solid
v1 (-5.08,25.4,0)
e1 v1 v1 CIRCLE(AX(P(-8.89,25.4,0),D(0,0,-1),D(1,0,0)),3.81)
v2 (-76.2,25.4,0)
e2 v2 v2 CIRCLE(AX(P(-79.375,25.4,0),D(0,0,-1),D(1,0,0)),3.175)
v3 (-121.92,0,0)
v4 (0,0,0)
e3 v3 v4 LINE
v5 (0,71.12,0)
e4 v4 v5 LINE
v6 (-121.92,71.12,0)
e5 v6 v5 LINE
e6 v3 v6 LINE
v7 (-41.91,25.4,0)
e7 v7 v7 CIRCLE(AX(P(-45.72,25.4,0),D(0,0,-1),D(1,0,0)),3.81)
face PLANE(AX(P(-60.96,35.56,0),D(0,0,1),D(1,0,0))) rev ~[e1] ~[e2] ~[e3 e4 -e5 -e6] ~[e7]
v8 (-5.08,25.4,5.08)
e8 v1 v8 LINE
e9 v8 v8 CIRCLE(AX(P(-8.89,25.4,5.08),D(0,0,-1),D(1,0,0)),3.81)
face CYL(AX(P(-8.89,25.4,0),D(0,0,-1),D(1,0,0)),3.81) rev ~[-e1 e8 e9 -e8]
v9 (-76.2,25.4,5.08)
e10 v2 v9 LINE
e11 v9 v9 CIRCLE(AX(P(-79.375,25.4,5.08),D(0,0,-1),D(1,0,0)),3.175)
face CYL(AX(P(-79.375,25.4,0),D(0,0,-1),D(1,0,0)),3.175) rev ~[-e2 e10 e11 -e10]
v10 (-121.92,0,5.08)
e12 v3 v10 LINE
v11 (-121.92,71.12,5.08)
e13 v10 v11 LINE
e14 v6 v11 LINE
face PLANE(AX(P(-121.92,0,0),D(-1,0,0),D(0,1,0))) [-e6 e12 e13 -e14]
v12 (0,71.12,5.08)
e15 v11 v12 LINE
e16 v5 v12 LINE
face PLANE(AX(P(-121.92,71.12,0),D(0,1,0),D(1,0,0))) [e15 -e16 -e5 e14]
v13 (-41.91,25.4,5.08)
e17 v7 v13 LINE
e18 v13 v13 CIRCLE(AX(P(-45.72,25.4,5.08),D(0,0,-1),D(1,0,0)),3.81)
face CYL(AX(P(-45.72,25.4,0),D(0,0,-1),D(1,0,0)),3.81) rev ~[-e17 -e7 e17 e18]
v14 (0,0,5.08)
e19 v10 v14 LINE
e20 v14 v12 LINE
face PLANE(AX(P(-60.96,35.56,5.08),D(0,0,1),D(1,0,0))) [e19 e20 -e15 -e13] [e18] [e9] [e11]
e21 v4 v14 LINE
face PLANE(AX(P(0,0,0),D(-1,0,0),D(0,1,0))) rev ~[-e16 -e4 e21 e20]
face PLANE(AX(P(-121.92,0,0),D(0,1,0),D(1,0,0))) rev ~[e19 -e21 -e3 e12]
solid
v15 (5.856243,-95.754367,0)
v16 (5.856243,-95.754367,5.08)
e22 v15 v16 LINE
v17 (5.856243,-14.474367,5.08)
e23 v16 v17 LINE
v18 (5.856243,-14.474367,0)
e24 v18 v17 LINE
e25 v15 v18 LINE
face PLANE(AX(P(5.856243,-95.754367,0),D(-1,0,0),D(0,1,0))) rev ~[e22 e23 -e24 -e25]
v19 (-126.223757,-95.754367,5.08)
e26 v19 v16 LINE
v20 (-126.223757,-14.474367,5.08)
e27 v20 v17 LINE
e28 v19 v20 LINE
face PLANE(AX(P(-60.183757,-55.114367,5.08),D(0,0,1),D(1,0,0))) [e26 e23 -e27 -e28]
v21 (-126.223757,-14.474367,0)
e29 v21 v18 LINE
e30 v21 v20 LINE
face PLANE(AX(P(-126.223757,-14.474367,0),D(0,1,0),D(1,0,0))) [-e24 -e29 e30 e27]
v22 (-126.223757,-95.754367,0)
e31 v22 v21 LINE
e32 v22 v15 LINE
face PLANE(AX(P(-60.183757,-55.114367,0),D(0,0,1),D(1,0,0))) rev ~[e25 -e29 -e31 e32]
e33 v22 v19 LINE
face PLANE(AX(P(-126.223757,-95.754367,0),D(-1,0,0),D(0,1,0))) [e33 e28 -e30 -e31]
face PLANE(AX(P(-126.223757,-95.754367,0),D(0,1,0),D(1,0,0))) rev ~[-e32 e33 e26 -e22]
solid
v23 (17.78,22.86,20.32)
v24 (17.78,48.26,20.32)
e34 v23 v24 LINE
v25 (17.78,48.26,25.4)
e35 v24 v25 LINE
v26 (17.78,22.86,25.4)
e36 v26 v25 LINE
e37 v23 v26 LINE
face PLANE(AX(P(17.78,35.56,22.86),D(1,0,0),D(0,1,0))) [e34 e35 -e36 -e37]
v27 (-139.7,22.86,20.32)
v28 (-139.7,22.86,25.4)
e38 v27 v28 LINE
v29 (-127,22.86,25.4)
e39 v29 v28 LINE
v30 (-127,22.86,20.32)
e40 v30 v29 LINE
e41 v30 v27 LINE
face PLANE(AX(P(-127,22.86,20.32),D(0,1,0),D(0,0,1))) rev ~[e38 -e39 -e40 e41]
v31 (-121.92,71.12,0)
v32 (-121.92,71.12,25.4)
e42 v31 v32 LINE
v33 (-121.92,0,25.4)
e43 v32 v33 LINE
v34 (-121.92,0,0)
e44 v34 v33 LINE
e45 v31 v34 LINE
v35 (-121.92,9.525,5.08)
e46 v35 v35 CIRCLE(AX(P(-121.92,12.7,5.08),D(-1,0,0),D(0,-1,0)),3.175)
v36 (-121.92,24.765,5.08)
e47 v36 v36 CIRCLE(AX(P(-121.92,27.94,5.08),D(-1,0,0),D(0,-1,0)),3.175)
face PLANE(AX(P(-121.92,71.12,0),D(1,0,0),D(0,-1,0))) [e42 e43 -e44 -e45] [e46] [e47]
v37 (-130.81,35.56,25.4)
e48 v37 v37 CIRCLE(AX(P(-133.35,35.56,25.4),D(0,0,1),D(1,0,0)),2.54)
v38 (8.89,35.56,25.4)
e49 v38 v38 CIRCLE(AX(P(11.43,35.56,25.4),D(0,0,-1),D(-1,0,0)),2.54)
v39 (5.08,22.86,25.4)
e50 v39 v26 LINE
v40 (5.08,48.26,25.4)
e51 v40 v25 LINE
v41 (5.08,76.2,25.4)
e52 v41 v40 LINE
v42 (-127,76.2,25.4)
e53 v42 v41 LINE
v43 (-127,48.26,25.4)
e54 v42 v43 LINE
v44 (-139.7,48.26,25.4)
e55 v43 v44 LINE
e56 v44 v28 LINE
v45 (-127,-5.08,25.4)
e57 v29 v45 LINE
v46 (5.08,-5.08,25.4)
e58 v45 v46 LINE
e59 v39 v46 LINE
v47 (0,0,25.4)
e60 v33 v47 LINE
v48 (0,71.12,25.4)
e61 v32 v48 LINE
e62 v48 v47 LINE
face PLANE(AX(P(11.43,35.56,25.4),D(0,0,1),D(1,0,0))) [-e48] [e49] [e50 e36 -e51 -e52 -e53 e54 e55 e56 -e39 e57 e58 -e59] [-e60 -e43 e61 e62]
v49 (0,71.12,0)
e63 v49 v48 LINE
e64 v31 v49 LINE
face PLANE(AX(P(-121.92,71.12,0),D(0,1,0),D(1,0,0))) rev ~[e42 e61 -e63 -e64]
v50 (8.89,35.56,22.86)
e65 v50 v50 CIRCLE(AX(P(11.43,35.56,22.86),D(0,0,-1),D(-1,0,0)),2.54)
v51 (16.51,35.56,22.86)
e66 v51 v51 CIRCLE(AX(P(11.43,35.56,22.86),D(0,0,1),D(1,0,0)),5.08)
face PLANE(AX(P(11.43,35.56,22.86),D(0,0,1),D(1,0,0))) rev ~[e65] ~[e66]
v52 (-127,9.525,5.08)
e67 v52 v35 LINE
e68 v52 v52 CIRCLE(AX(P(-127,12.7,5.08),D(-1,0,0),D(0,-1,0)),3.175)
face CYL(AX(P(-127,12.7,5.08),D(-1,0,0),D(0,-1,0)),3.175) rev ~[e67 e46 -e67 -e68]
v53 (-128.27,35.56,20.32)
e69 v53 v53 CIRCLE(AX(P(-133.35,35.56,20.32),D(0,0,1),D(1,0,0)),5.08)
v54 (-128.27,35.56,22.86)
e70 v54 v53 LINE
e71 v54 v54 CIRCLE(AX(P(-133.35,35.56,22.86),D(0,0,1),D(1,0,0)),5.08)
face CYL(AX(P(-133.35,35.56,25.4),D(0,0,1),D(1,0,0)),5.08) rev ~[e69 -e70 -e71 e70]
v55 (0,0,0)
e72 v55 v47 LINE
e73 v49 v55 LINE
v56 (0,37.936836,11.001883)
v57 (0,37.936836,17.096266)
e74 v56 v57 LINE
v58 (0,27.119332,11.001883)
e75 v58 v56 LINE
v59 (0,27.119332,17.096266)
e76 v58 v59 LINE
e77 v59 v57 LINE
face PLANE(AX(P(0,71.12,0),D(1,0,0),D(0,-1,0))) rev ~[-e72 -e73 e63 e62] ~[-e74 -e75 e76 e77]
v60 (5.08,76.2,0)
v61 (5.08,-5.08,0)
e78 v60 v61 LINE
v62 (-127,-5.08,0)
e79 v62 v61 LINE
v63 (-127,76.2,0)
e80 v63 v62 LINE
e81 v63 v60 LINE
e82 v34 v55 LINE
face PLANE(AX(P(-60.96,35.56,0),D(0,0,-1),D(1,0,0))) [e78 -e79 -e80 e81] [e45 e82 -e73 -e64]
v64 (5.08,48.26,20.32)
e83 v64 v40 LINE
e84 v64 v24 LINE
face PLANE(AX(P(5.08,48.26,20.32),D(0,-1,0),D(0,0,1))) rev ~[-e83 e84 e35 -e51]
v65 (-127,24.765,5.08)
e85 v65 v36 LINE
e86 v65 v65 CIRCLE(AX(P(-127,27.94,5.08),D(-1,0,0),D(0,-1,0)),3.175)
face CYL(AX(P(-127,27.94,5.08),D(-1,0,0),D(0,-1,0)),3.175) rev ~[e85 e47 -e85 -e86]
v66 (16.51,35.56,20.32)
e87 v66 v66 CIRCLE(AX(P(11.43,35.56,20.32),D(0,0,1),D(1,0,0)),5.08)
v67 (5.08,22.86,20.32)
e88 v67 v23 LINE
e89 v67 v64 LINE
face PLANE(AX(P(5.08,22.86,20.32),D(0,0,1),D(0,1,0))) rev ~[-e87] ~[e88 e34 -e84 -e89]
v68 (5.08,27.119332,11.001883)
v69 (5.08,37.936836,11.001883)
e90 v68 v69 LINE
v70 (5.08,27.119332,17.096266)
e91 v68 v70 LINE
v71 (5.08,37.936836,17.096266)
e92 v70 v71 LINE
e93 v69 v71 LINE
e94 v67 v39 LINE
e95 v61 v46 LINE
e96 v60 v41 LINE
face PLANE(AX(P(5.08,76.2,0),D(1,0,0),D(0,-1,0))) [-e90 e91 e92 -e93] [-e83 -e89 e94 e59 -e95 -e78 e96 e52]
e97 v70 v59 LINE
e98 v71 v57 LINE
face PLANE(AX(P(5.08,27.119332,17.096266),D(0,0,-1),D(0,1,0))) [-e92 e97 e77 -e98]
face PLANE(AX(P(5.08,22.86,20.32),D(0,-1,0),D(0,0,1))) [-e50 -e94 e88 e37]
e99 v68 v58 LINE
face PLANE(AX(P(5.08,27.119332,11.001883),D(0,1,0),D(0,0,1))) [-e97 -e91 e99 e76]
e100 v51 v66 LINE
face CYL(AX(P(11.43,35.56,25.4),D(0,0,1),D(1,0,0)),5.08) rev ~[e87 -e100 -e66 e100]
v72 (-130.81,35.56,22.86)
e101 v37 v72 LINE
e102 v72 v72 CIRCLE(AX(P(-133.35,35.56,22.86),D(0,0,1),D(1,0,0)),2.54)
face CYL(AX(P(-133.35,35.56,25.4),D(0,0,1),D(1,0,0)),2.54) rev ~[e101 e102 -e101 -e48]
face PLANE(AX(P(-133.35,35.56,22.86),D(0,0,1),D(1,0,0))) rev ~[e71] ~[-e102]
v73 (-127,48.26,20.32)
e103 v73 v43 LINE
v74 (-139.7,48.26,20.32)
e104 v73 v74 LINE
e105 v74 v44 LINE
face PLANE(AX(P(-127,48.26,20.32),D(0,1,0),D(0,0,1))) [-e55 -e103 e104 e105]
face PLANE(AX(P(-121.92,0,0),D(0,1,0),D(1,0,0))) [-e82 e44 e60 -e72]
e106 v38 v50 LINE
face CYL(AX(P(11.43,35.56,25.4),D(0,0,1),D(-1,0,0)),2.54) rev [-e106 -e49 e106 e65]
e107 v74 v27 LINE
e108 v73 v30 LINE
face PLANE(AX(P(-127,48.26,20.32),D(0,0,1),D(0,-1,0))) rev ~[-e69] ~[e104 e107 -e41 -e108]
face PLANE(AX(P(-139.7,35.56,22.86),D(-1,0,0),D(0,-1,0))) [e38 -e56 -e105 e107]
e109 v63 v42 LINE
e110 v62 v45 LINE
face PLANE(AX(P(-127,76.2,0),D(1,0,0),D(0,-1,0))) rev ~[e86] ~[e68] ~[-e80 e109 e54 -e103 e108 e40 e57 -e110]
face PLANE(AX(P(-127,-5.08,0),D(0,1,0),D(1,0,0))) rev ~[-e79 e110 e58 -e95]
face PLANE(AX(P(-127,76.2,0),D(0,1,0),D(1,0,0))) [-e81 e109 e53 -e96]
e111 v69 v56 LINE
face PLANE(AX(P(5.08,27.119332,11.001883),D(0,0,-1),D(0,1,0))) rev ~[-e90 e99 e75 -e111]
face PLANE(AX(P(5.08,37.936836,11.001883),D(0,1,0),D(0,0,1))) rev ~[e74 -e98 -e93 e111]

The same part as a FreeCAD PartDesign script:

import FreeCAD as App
import Part
import Sketcher
Q = App.Units.Quantity


def add_polygon(sketch, points):
    """Adds a closed chain of lines whose ends are joined by coincident constraints."""
    first, n = sketch.GeometryCount, len(points)
    for a, b in zip(points, points[1:] + points[:1]):
        sketch.addGeometry(Part.LineSegment(App.Vector(*a, 0), App.Vector(*b, 0)), False)
    for i in range(n):
        sketch.addConstraint(Sketcher.Constraint("Coincident", first + i, 2, first + (i + 1) % n, 1))

doc = App.newDocument("Part")
body = doc.addObject("PartDesign::Body", "Body")

sketch1 = doc.addObject("Sketcher::SketchObject", "Sketch")
body.addObject(sketch1)
sketch1.AttachmentSupport = (doc.XY_Plane, [""])
sketch1.MapMode = "FlatFace"
add_polygon(sketch1, [(-122, 71), (-122, 0), (0, 0), (0, 71)])
sketch1.addConstraint([
    Sketcher.Constraint("Vertical", 0),
    Sketcher.Constraint("Horizontal", 1),
    Sketcher.Constraint("Vertical", 2),
    Sketcher.Constraint("Horizontal", 3),
    Sketcher.Constraint("Coincident", 1, 2, -1, 1),
    Sketcher.Constraint("DistanceX", 1, 1, 1, 2, Q("4.8 in")),
    Sketcher.Constraint("DistanceY", 0, 2, 0, 1, Q("2.8 in")),
])
pad1 = doc.addObject("PartDesign::Pad", "Pad")
body.addObject(pad1)
pad1.Profile = sketch1
pad1.Length = Q("0.2 in")

sketch2 = doc.addObject("Sketcher::SketchObject", "Sketch001")
body.addObject(sketch2)
sketch2.AttachmentSupport = (doc.XY_Plane, [""])
sketch2.MapMode = "FlatFace"
sketch2.addGeometry(Part.Circle(App.Vector(-45.7, 25.4, 0), App.Vector(0, 0, 1), 3.8), False)
sketch2.addConstraint([
    Sketcher.Constraint("Diameter", 0, Q("0.3 in")),
    Sketcher.Constraint("DistanceY", -1, 1, 0, 3, Q("1 in")),
    Sketcher.Constraint("DistanceX", 0, 3, -1, 1, Q("1.8 in")),
])
pocket1 = doc.addObject("PartDesign::Pocket", "Pocket")
body.addObject(pocket1)
pocket1.Profile = sketch2
pocket1.Length = Q("0.2 in")
pocket1.Reversed = True

sketch3 = doc.addObject("Sketcher::SketchObject", "Sketch002")
body.addObject(sketch3)
sketch3.AttachmentSupport = (doc.XY_Plane, [""])
sketch3.MapMode = "FlatFace"
sketch3.addGeometry(Part.Circle(App.Vector(-8.9, 25.4, 0), App.Vector(0, 0, 1), 3.8), False)
sketch3.addConstraint([
    Sketcher.Constraint("Diameter", 0, Q("0.3 in")),
    Sketcher.Constraint("DistanceY", -1, 1, 0, 3, Q("1 in")),
    Sketcher.Constraint("DistanceX", 0, 3, -1, 1, Q("0.35 in")),
])
pocket2 = doc.addObject("PartDesign::Pocket", "Pocket001")
body.addObject(pocket2)
pocket2.Profile = sketch3
pocket2.Length = Q("0.2 in")
pocket2.Reversed = True

sketch4 = doc.addObject("Sketcher::SketchObject", "Sketch003")
body.addObject(sketch4)
sketch4.AttachmentSupport = (doc.XY_Plane, [""])
sketch4.MapMode = "FlatFace"
sketch4.addGeometry(Part.Circle(App.Vector(-79.4, 25.4, 0), App.Vector(0, 0, 1), 3.2), False)
sketch4.addConstraint([
    Sketcher.Constraint("Diameter", 0, Q("0.25 in")),
    Sketcher.Constraint("DistanceY", -1, 1, 0, 3, Q("1 in")),
    Sketcher.Constraint("DistanceX", 0, 3, -1, 1, Q("3.125 in")),
])
pocket3 = doc.addObject("PartDesign::Pocket", "Pocket002")
body.addObject(pocket3)
pocket3.Profile = sketch4
pocket3.Length = Q("0.2 in")
pocket3.Reversed = True
body2 = doc.addObject("PartDesign::Body", "Body001")

sketch5 = doc.addObject("Sketcher::SketchObject", "Sketch004")
body2.addObject(sketch5)
sketch5.AttachmentSupport = (doc.getObject("XY_Plane001"), [""])
sketch5.MapMode = "FlatFace"
add_polygon(sketch5, [(-127, -5), (-127, 76), (5, 76), (5, -5)])
add_polygon(sketch5, [(0, 71), (-122, 71), (-122, 0), (0, 0)])
sketch5.addConstraint([
    Sketcher.Constraint("Vertical", 0),
    Sketcher.Constraint("Horizontal", 1),
    Sketcher.Constraint("Vertical", 2),
    Sketcher.Constraint("Horizontal", 3),
    Sketcher.Constraint("Horizontal", 4),
    Sketcher.Constraint("Vertical", 5),
    Sketcher.Constraint("Horizontal", 6),
    Sketcher.Constraint("Vertical", 7),
    Sketcher.Constraint("Coincident", 6, 2, -1, 1),
    Sketcher.Constraint("DistanceX", 1, 1, 1, 2, Q("5.2 in")),
    Sketcher.Constraint("DistanceX", 4, 2, 4, 1, Q("4.8 in")),
    Sketcher.Constraint("DistanceY", 0, 1, 0, 2, Q("3.2 in")),
    Sketcher.Constraint("DistanceY", 5, 2, 5, 1, Q("2.8 in")),
    Sketcher.Constraint("DistanceX", 0, 2, -1, 1, Q("5 in")),
    Sketcher.Constraint("DistanceY", -1, 1, 0, 2, Q("3 in")),
])
pad2 = doc.addObject("PartDesign::Pad", "Pad001")
body2.addObject(pad2)
pad2.Profile = sketch5
pad2.Length = Q("1 in")

sketch6 = doc.addObject("Sketcher::SketchObject", "Sketch005")
body2.addObject(sketch6)
sketch6.AttachmentSupport = (doc.getObject("YZ_Plane001"), [""])
sketch6.MapMode = "FlatFace"
sketch6.AttachmentOffset = App.Placement(App.Vector(0, 0, -5 * 25.4), App.Rotation())
sketch6.addGeometry(Part.Circle(App.Vector(27.9, 5.1, 0), App.Vector(0, 0, 1), 3.2), False)
sketch6.addConstraint([
    Sketcher.Constraint("Diameter", 0, Q("0.25 in")),
    Sketcher.Constraint("DistanceX", -1, 1, 0, 3, Q("1.1 in")),
    Sketcher.Constraint("DistanceY", -1, 1, 0, 3, Q("0.2 in")),
])
pocket4 = doc.addObject("PartDesign::Pocket", "Pocket003")
body2.addObject(pocket4)
pocket4.Profile = sketch6
pocket4.Length = Q("0.2 in")
pocket4.Reversed = True

sketch7 = doc.addObject("Sketcher::SketchObject", "Sketch006")
body2.addObject(sketch7)
sketch7.AttachmentSupport = (doc.getObject("YZ_Plane001"), [""])
sketch7.MapMode = "FlatFace"
sketch7.AttachmentOffset = App.Placement(App.Vector(0, 0, -5 * 25.4), App.Rotation())
sketch7.addGeometry(Part.Circle(App.Vector(12.7, 5.1, 0), App.Vector(0, 0, 1), 3.2), False)
sketch7.addConstraint([
    Sketcher.Constraint("Diameter", 0, Q("0.25 in")),
    Sketcher.Constraint("DistanceX", -1, 1, 0, 3, Q("0.5 in")),
    Sketcher.Constraint("DistanceY", -1, 1, 0, 3, Q("0.2 in")),
])
pocket5 = doc.addObject("PartDesign::Pocket", "Pocket004")
body2.addObject(pocket5)
pocket5.Profile = sketch7
pocket5.Length = Q("0.2 in")
pocket5.Reversed = True

sketch8 = doc.addObject("Sketcher::SketchObject", "Sketch007")
body2.addObject(sketch8)
sketch8.AttachmentSupport = (doc.getObject("YZ_Plane001"), [""])
sketch8.MapMode = "FlatFace"
sketch8.AttachmentOffset = App.Placement(App.Vector(0, 0, 0.2 * 25.4), App.Rotation())
add_polygon(sketch8, [(27, 17), (27, 11), (38, 11), (38, 17)])
sketch8.addConstraint([
    Sketcher.Constraint("Vertical", 0),
    Sketcher.Constraint("Horizontal", 1),
    Sketcher.Constraint("Vertical", 2),
    Sketcher.Constraint("Horizontal", 3),
    Sketcher.Constraint("DistanceX", 1, 1, 1, 2, Q("10.817503 mm")),
    Sketcher.Constraint("DistanceY", 0, 2, 0, 1, Q("6.094383 mm")),
    Sketcher.Constraint("DistanceX", -1, 1, 0, 2, Q("27.119332 mm")),
    Sketcher.Constraint("DistanceY", -1, 1, 0, 2, Q("11.001883 mm")),
])
pocket6 = doc.addObject("PartDesign::Pocket", "Pocket005")
body2.addObject(pocket6)
pocket6.Profile = sketch8
pocket6.Length = Q("0.2 in")

sketch9 = doc.addObject("Sketcher::SketchObject", "Sketch008")
body2.addObject(sketch9)
sketch9.AttachmentSupport = (doc.getObject("YZ_Plane001"), [""])
sketch9.MapMode = "FlatFace"
sketch9.AttachmentOffset = App.Placement(App.Vector(0, 0, 0.2 * 25.4), App.Rotation())
add_polygon(sketch9, [(23, 25), (23, 20), (48, 20), (48, 25)])
sketch9.addConstraint([
    Sketcher.Constraint("Vertical", 0),
    Sketcher.Constraint("Horizontal", 1),
    Sketcher.Constraint("Vertical", 2),
    Sketcher.Constraint("Horizontal", 3),
    Sketcher.Constraint("DistanceX", 1, 1, 1, 2, Q("1 in")),
    Sketcher.Constraint("DistanceY", 0, 2, 0, 1, Q("0.2 in")),
    Sketcher.Constraint("DistanceY", -1, 1, 2, 2, Q("1 in")),
    Sketcher.Constraint("DistanceX", -1, 1, 0, 2, Q("0.9 in")),
])
pad3 = doc.addObject("PartDesign::Pad", "Pad002")
body2.addObject(pad3)
pad3.Profile = sketch9
pad3.Length = Q("0.5 in")

sketch10 = doc.addObject("Sketcher::SketchObject", "Sketch009")
body2.addObject(sketch10)
sketch10.AttachmentSupport = (doc.getObject("YZ_Plane001"), [""])
sketch10.MapMode = "FlatFace"
sketch10.AttachmentOffset = App.Placement(App.Vector(0, 0, -5 * 25.4), App.Rotation())
add_polygon(sketch10, [(48, 25), (48, 20), (23, 20), (23, 25)])
sketch10.addConstraint([
    Sketcher.Constraint("Vertical", 0),
    Sketcher.Constraint("Horizontal", 1),
    Sketcher.Constraint("Vertical", 2),
    Sketcher.Constraint("Horizontal", 3),
    Sketcher.Constraint("DistanceX", 1, 2, 1, 1, Q("1 in")),
    Sketcher.Constraint("DistanceY", 0, 2, 0, 1, Q("0.2 in")),
    Sketcher.Constraint("DistanceY", -1, 1, 2, 2, Q("1 in")),
    Sketcher.Constraint("DistanceX", -1, 1, 0, 2, Q("1.9 in")),
])
pad4 = doc.addObject("PartDesign::Pad", "Pad003")
body2.addObject(pad4)
pad4.Profile = sketch10
pad4.Length = Q("0.5 in")
pad4.Reversed = True

sketch11 = doc.addObject("Sketcher::SketchObject", "Sketch010")
body2.addObject(sketch11)
sketch11.AttachmentSupport = (doc.getObject("XY_Plane001"), [""])
sketch11.MapMode = "FlatFace"
sketch11.AttachmentOffset = App.Placement(App.Vector(0, 0, 1 * 25.4), App.Rotation())
sketch11.addGeometry(Part.Circle(App.Vector(11, 36, 0), App.Vector(0, 0, 1), 5), False)
sketch11.addConstraint([
    Sketcher.Constraint("Diameter", 0, Q("0.4 in")),
    Sketcher.Constraint("DistanceY", -1, 1, 0, 3, Q("1.4 in")),
    Sketcher.Constraint("DistanceX", -1, 1, 0, 3, Q("0.45 in")),
])
pocket7 = doc.addObject("PartDesign::Pocket", "Pocket006")
body2.addObject(pocket7)
pocket7.Profile = sketch11
pocket7.Length = Q("0.2 in")

sketch12 = doc.addObject("Sketcher::SketchObject", "Sketch011")
body2.addObject(sketch12)
sketch12.AttachmentSupport = (doc.getObject("XY_Plane001"), [""])
sketch12.MapMode = "FlatFace"
sketch12.AttachmentOffset = App.Placement(App.Vector(0, 0, 1 * 25.4), App.Rotation())
sketch12.addGeometry(Part.Circle(App.Vector(-133, 36, 0), App.Vector(0, 0, 1), 5), False)
sketch12.addConstraint([
    Sketcher.Constraint("Diameter", 0, Q("0.4 in")),
    Sketcher.Constraint("DistanceY", -1, 1, 0, 3, Q("1.4 in")),
    Sketcher.Constraint("DistanceX", 0, 3, -1, 1, Q("5.25 in")),
])
pocket8 = doc.addObject("PartDesign::Pocket", "Pocket007")
body2.addObject(pocket8)
pocket8.Profile = sketch12
pocket8.Length = Q("0.2 in")

sketch13 = doc.addObject("Sketcher::SketchObject", "Sketch012")
body2.addObject(sketch13)
sketch13.AttachmentSupport = (doc.getObject("XY_Plane001"), [""])
sketch13.MapMode = "FlatFace"
sketch13.AttachmentOffset = App.Placement(App.Vector(0, 0, 1 * 25.4), App.Rotation())
sketch13.addGeometry([
    Part.Circle(App.Vector(11.4, 35.6, 0), App.Vector(0, 0, 1), 5.1),
    Part.Circle(App.Vector(11.4, 35.6, 0), App.Vector(0, 0, 1), 2.5),
    Part.Circle(App.Vector(-133.3, 35.6, 0), App.Vector(0, 0, 1), 5.1),
    Part.Circle(App.Vector(-133.3, 35.6, 0), App.Vector(0, 0, 1), 2.5),
], False)
sketch13.addConstraint([
    Sketcher.Constraint("Coincident", 1, 3, 0, 3),
    Sketcher.Constraint("Coincident", 3, 3, 2, 3),
    Sketcher.Constraint("Equal", 0, 2),
    Sketcher.Constraint("Equal", 1, 3),
    Sketcher.Constraint("Horizontal", 1, 3, 2, 3),
    Sketcher.Constraint("Diameter", 0, Q("0.4 in")),
    Sketcher.Constraint("Diameter", 1, Q("0.2 in")),
    Sketcher.Constraint("DistanceY", -1, 1, 0, 3, Q("1.4 in")),
    Sketcher.Constraint("DistanceX", 2, 3, 0, 3, Q("5.7 in")),
    Sketcher.Constraint("DistanceX", -1, 1, 0, 3, Q("0.45 in")),
])
pad5 = doc.addObject("PartDesign::Pad", "Pad004")
body2.addObject(pad5)
pad5.Profile = sketch13
pad5.Length = Q("0.1 in")
pad5.Reversed = True
body3 = doc.addObject("PartDesign::Body", "Body002")

sketch14 = doc.addObject("Sketcher::SketchObject", "Sketch013")
body3.addObject(sketch14)
sketch14.AttachmentSupport = (doc.getObject("XY_Plane002"), [""])
sketch14.MapMode = "FlatFace"
add_polygon(sketch14, [(-126, -14), (-126, -96), (6, -96), (6, -14)])
sketch14.addConstraint([
    Sketcher.Constraint("Vertical", 0),
    Sketcher.Constraint("Horizontal", 1),
    Sketcher.Constraint("Vertical", 2),
    Sketcher.Constraint("Horizontal", 3),
    Sketcher.Constraint("DistanceX", 1, 1, 1, 2, Q("5.2 in")),
    Sketcher.Constraint("DistanceY", 0, 2, 0, 1, Q("3.2 in")),
    Sketcher.Constraint("DistanceX", 0, 2, -1, 1, Q("126.223757 mm")),
    Sketcher.Constraint("DistanceY", 0, 2, -1, 1, Q("95.754367 mm")),
])
pad6 = doc.addObject("PartDesign::Pad", "Pad005")
body3.addObject(pad6)
pad6.Profile = sketch14
pad6.Length = Q("0.2 in")

doc.recompute()
